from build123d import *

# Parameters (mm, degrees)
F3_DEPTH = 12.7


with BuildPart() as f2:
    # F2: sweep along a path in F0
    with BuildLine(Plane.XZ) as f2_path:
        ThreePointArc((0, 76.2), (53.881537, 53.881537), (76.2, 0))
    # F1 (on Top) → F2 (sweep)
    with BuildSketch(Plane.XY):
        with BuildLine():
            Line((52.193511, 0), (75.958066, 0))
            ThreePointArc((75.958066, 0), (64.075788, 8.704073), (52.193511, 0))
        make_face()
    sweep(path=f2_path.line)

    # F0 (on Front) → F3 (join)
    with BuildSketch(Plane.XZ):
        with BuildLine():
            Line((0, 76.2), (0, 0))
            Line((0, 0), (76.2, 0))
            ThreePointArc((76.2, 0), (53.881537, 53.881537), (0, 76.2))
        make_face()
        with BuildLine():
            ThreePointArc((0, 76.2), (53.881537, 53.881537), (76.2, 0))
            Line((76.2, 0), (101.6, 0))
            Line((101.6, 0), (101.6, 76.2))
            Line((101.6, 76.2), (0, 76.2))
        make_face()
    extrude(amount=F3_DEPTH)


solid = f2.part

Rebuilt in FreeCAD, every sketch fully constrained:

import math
import FreeCAD as App
import Part
import Sketcher
Q = App.Units.Quantity


def add_polygon(sketch, points):
    """Adds a closed chain of lines whose ends are joined by coincident constraints."""
    first, n = sketch.GeometryCount, len(points)
    for a, b in zip(points, points[1:] + points[:1]):
        sketch.addGeometry(Part.LineSegment(App.Vector(*a, 0), App.Vector(*b, 0)), False)
    for i in range(n):
        sketch.addConstraint(Sketcher.Constraint("Coincident", first + i, 2, first + (i + 1) % n, 1))

doc = App.newDocument("Part")
body = doc.addObject("PartDesign::Body", "Body")

sketch1 = doc.addObject("Sketcher::SketchObject", "Sketch")
body.addObject(sketch1)
sketch1.AttachmentSupport = (doc.XY_Plane, [""])
sketch1.MapMode = "FlatFace"
sketch1.addGeometry(Part.LineSegment(App.Vector(52.193511, 0, 0), App.Vector(75.958066, 0, 0)), False)
sketch1.addGeometry(Part.ArcOfCircle(Part.Circle(App.Vector(64.075789, -3.758449, 0), App.Vector(0, 0, 1), 12.462522), math.radians(17.552535), math.radians(162.447465)), False)
sketch1.addConstraint(Sketcher.Constraint("Coincident", 0, 1, 1, 2))
sketch1.addConstraint(Sketcher.Constraint("Coincident", 1, 1, 0, 2))
sketch1.addConstraint(Sketcher.Constraint("Horizontal", 0))
sketch1.addConstraint(Sketcher.Constraint("PointOnObject", 0, 1, -1))
sketch1.addConstraint(Sketcher.Constraint("Radius", 1, 12.462522))
sketch1.addConstraint(Sketcher.Constraint("DistanceX", 0, 1, 0, 2, 23.764555))
sketch1.addConstraint(Sketcher.Constraint("DistanceX", -1, 1, 1, 3, 64.075789))

sketch2 = doc.addObject("Sketcher::SketchObject", "Sketch001")
body.addObject(sketch2)
sketch2.AttachmentSupport = (doc.XZ_Plane, [""])
sketch2.MapMode = "FlatFace"
sketch2.addGeometry(Part.ArcOfCircle(Part.Circle(App.Vector(0.000001, 0.000001, 0), App.Vector(0, 0, 1), 76.199999), math.radians(-0.000001), math.radians(90.000001)), False)
sketch2.addConstraint(Sketcher.Constraint("Coincident", 0, 3, -1, 1))
sketch2.addConstraint(Sketcher.Constraint("PointOnObject", 0, 1, -1))
sketch2.addConstraint(Sketcher.Constraint("PointOnObject", 0, 2, -2))
sketch2.addConstraint(Sketcher.Constraint("Radius", 0, Q("3 in")))
doc.recompute()

additivepipe = doc.addObject("PartDesign::AdditivePipe", "AdditivePipe")
body.addObject(additivepipe)
additivepipe.Profile = sketch1
additivepipe.Spine = (sketch2, ["Edge1"])

sketch3 = doc.addObject("Sketcher::SketchObject", "Sketch002")
body.addObject(sketch3)
sketch3.AttachmentSupport = (doc.XZ_Plane, [""])
sketch3.MapMode = "FlatFace"
add_polygon(sketch3, [(0, 76.2), (0, 0), (101.6, 0), (101.6, 76.2)])
sketch3.addConstraint(Sketcher.Constraint("Vertical", 0))
sketch3.addConstraint(Sketcher.Constraint("Horizontal", 1))
sketch3.addConstraint(Sketcher.Constraint("Vertical", 2))
sketch3.addConstraint(Sketcher.Constraint("Horizontal", 3))
sketch3.addConstraint(Sketcher.Constraint("Coincident", 0, 2, -1, 1))
sketch3.addConstraint(Sketcher.Constraint("DistanceX", 1, 1, 1, 2, Q("4 in")))
sketch3.addConstraint(Sketcher.Constraint("DistanceY", 0, 2, 0, 1, Q("3 in")))
pad1 = doc.addObject("PartDesign::Pad", "Pad")
body.addObject(pad1)
pad1.Profile = sketch3
pad1.Length = Q("0.5 in")

doc.recompute()
